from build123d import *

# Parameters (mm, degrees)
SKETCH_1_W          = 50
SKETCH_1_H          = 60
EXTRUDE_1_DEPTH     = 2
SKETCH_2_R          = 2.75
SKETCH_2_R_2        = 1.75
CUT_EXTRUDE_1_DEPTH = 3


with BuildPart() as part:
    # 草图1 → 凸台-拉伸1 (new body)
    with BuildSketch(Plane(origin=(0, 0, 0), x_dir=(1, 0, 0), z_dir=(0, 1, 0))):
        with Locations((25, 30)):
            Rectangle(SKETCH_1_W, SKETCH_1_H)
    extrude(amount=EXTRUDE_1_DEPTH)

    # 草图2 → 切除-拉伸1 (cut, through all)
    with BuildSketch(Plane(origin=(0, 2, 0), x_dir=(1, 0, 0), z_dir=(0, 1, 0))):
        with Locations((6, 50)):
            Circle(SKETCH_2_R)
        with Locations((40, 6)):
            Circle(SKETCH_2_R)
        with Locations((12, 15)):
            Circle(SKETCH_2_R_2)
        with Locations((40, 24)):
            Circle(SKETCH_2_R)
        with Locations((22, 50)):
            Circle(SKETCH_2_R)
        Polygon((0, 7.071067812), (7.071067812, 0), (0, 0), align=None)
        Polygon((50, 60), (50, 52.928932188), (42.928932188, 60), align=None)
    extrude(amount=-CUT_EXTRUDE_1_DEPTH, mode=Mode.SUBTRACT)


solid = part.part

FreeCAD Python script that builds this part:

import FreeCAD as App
import Part
import Sketcher

doc = App.newDocument("Part")
body = doc.addObject("PartDesign::Body", "Body")

# Sketch on XZ plane
sketch1 = body.newObject("Sketcher::SketchObject", "Sketch")
sketch1.AttachmentSupport = (doc.getObject("XZ_Plane"), [""])
sketch1.MapMode = "FlatFace"
sketch1.addGeometry(Part.LineSegment(App.Vector(0, -60, 0), App.Vector(0, 0, 0)), False)
sketch1.addGeometry(Part.LineSegment(App.Vector(0, 0, 0), App.Vector(50, 0, 0)), False)
sketch1.addGeometry(Part.LineSegment(App.Vector(50, 0, 0), App.Vector(50, -60, 0)), False)
sketch1.addGeometry(Part.LineSegment(App.Vector(50, -60, 0), App.Vector(0, -60, 0)), False)
sketch1.addConstraint(Sketcher.Constraint("Coincident", 0, 2, 1, 1))
sketch1.addConstraint(Sketcher.Constraint("Coincident", 1, 2, 2, 1))
sketch1.addConstraint(Sketcher.Constraint("Coincident", 2, 2, 3, 1))
sketch1.addConstraint(Sketcher.Constraint("Coincident", 3, 2, 0, 1))
sketch1.addConstraint(Sketcher.Constraint("Vertical", 0))
sketch1.addConstraint(Sketcher.Constraint("Horizontal", 1))
sketch1.addConstraint(Sketcher.Constraint("Vertical", 2))
sketch1.addConstraint(Sketcher.Constraint("Horizontal", 3))
sketch1.addConstraint(Sketcher.Constraint("Coincident", 0, 2, -1, 1))
sketch1.addConstraint(Sketcher.Constraint("DistanceX", 1, 1, 1, 2, 50.0))
sketch1.addConstraint(Sketcher.Constraint("DistanceY", 0, 1, 0, 2, 60.0))
pad1 = body.newObject("PartDesign::Pad", "Pad")
pad1.Profile = sketch1
pad1.Length = 2
pad1.Reversed = True

# Sketch on XZ plane
sketch2 = body.newObject("Sketcher::SketchObject", "Sketch001")
sketch2.AttachmentSupport = (doc.getObject("XZ_Plane"), [""])
sketch2.MapMode = "FlatFace"
sketch2.AttachmentOffset = App.Placement(App.Vector(0, 0, -2), App.Rotation())
sketch2.addGeometry(Part.Circle(App.Vector(6, -50, 0), App.Vector(0, 0, 1), 2.75), False)
sketch2.addGeometry(Part.Circle(App.Vector(40, -6, 0), App.Vector(0, 0, 1), 2.75), False)
sketch2.addGeometry(Part.Circle(App.Vector(12, -15, 0), App.Vector(0, 0, 1), 1.75), False)
sketch2.addGeometry(Part.Circle(App.Vector(40, -24, 0), App.Vector(0, 0, 1), 2.75), False)
sketch2.addGeometry(Part.Circle(App.Vector(22, -50, 0), App.Vector(0, 0, 1), 2.75), False)
sketch2.addGeometry(Part.LineSegment(App.Vector(7.071068, 0, 0), App.Vector(0, -7.071068, 0)), False)
sketch2.addGeometry(Part.LineSegment(App.Vector(0, -7.071068, 0), App.Vector(0, 0, 0)), False)
sketch2.addGeometry(Part.LineSegment(App.Vector(0, 0, 0), App.Vector(7.071068, 0, 0)), False)
sketch2.addGeometry(Part.LineSegment(App.Vector(50, -52.928932, 0), App.Vector(50, -60, 0)), False)
sketch2.addGeometry(Part.LineSegment(App.Vector(50, -60, 0), App.Vector(42.928932, -60, 0)), False)
sketch2.addGeometry(Part.LineSegment(App.Vector(42.928932, -60, 0), App.Vector(50, -52.928932, 0)), False)
sketch2.addConstraint(Sketcher.Constraint("Coincident", 5, 2, 6, 1))
sketch2.addConstraint(Sketcher.Constraint("Coincident", 6, 2, 7, 1))
sketch2.addConstraint(Sketcher.Constraint("Coincident", 7, 2, 5, 1))
sketch2.addConstraint(Sketcher.Constraint("Coincident", 8, 2, 9, 1))
sketch2.addConstraint(Sketcher.Constraint("Coincident", 9, 2, 10, 1))
sketch2.addConstraint(Sketcher.Constraint("Coincident", 10, 2, 8, 1))
sketch2.addConstraint(Sketcher.Constraint("Vertical", 6))
sketch2.addConstraint(Sketcher.Constraint("Horizontal", 7))
sketch2.addConstraint(Sketcher.Constraint("Vertical", 8))
sketch2.addConstraint(Sketcher.Constraint("Horizontal", 9))
sketch2.addConstraint(Sketcher.Constraint("Coincident", 6, 2, -1, 1))
sketch2.addConstraint(Sketcher.Constraint("Equal", 0, 1))
sketch2.addConstraint(Sketcher.Constraint("Equal", 1, 3))
sketch2.addConstraint(Sketcher.Constraint("Equal", 3, 4))
sketch2.addConstraint(Sketcher.Constraint("Parallel", 5, 10))
sketch2.addConstraint(Sketcher.Constraint("Horizontal", 0, 3, 4, 3))
sketch2.addConstraint(Sketcher.Constraint("Vertical", 1, 3, 3, 3))
sketch2.addConstraint(Sketcher.Constraint("Equal", 7, 9))
sketch2.addConstraint(Sketcher.Constraint("Equal", 9, 6))
sketch2.addConstraint(Sketcher.Constraint("Diameter", 0, 5.5))
sketch2.addConstraint(Sketcher.Constraint("Diameter", 2, 3.5))
sketch2.addConstraint(Sketcher.Constraint("Distance", 5, 10.0))
sketch2.addConstraint(Sketcher.Constraint("DistanceX", -1, 1, 0, 3, 6.0))
sketch2.addConstraint(Sketcher.Constraint("DistanceY", 0, 3, -1, 1, 50.0))
sketch2.addConstraint(Sketcher.Constraint("DistanceX", -1, 1, 1, 3, 40.0))
sketch2.addConstraint(Sketcher.Constraint("DistanceY", 1, 3, -1, 1, 6.0))
sketch2.addConstraint(Sketcher.Constraint("DistanceX", -1, 1, 2, 3, 12.0))
sketch2.addConstraint(Sketcher.Constraint("DistanceY", 2, 3, -1, 1, 15.0))
sketch2.addConstraint(Sketcher.Constraint("DistanceY", 3, 3, -1, 1, 24.0))
sketch2.addConstraint(Sketcher.Constraint("DistanceX", -1, 1, 4, 3, 22.0))
sketch2.addConstraint(Sketcher.Constraint("DistanceX", -1, 1, 8, 2, 50.0))
sketch2.addConstraint(Sketcher.Constraint("DistanceY", 8, 2, -1, 1, 60.0))
pocket1 = body.newObject("PartDesign::Pocket", "Pocket")
pocket1.Profile = sketch2
pocket1.Type = "ThroughAll"
pocket1.Reversed = True

doc.recompute()
